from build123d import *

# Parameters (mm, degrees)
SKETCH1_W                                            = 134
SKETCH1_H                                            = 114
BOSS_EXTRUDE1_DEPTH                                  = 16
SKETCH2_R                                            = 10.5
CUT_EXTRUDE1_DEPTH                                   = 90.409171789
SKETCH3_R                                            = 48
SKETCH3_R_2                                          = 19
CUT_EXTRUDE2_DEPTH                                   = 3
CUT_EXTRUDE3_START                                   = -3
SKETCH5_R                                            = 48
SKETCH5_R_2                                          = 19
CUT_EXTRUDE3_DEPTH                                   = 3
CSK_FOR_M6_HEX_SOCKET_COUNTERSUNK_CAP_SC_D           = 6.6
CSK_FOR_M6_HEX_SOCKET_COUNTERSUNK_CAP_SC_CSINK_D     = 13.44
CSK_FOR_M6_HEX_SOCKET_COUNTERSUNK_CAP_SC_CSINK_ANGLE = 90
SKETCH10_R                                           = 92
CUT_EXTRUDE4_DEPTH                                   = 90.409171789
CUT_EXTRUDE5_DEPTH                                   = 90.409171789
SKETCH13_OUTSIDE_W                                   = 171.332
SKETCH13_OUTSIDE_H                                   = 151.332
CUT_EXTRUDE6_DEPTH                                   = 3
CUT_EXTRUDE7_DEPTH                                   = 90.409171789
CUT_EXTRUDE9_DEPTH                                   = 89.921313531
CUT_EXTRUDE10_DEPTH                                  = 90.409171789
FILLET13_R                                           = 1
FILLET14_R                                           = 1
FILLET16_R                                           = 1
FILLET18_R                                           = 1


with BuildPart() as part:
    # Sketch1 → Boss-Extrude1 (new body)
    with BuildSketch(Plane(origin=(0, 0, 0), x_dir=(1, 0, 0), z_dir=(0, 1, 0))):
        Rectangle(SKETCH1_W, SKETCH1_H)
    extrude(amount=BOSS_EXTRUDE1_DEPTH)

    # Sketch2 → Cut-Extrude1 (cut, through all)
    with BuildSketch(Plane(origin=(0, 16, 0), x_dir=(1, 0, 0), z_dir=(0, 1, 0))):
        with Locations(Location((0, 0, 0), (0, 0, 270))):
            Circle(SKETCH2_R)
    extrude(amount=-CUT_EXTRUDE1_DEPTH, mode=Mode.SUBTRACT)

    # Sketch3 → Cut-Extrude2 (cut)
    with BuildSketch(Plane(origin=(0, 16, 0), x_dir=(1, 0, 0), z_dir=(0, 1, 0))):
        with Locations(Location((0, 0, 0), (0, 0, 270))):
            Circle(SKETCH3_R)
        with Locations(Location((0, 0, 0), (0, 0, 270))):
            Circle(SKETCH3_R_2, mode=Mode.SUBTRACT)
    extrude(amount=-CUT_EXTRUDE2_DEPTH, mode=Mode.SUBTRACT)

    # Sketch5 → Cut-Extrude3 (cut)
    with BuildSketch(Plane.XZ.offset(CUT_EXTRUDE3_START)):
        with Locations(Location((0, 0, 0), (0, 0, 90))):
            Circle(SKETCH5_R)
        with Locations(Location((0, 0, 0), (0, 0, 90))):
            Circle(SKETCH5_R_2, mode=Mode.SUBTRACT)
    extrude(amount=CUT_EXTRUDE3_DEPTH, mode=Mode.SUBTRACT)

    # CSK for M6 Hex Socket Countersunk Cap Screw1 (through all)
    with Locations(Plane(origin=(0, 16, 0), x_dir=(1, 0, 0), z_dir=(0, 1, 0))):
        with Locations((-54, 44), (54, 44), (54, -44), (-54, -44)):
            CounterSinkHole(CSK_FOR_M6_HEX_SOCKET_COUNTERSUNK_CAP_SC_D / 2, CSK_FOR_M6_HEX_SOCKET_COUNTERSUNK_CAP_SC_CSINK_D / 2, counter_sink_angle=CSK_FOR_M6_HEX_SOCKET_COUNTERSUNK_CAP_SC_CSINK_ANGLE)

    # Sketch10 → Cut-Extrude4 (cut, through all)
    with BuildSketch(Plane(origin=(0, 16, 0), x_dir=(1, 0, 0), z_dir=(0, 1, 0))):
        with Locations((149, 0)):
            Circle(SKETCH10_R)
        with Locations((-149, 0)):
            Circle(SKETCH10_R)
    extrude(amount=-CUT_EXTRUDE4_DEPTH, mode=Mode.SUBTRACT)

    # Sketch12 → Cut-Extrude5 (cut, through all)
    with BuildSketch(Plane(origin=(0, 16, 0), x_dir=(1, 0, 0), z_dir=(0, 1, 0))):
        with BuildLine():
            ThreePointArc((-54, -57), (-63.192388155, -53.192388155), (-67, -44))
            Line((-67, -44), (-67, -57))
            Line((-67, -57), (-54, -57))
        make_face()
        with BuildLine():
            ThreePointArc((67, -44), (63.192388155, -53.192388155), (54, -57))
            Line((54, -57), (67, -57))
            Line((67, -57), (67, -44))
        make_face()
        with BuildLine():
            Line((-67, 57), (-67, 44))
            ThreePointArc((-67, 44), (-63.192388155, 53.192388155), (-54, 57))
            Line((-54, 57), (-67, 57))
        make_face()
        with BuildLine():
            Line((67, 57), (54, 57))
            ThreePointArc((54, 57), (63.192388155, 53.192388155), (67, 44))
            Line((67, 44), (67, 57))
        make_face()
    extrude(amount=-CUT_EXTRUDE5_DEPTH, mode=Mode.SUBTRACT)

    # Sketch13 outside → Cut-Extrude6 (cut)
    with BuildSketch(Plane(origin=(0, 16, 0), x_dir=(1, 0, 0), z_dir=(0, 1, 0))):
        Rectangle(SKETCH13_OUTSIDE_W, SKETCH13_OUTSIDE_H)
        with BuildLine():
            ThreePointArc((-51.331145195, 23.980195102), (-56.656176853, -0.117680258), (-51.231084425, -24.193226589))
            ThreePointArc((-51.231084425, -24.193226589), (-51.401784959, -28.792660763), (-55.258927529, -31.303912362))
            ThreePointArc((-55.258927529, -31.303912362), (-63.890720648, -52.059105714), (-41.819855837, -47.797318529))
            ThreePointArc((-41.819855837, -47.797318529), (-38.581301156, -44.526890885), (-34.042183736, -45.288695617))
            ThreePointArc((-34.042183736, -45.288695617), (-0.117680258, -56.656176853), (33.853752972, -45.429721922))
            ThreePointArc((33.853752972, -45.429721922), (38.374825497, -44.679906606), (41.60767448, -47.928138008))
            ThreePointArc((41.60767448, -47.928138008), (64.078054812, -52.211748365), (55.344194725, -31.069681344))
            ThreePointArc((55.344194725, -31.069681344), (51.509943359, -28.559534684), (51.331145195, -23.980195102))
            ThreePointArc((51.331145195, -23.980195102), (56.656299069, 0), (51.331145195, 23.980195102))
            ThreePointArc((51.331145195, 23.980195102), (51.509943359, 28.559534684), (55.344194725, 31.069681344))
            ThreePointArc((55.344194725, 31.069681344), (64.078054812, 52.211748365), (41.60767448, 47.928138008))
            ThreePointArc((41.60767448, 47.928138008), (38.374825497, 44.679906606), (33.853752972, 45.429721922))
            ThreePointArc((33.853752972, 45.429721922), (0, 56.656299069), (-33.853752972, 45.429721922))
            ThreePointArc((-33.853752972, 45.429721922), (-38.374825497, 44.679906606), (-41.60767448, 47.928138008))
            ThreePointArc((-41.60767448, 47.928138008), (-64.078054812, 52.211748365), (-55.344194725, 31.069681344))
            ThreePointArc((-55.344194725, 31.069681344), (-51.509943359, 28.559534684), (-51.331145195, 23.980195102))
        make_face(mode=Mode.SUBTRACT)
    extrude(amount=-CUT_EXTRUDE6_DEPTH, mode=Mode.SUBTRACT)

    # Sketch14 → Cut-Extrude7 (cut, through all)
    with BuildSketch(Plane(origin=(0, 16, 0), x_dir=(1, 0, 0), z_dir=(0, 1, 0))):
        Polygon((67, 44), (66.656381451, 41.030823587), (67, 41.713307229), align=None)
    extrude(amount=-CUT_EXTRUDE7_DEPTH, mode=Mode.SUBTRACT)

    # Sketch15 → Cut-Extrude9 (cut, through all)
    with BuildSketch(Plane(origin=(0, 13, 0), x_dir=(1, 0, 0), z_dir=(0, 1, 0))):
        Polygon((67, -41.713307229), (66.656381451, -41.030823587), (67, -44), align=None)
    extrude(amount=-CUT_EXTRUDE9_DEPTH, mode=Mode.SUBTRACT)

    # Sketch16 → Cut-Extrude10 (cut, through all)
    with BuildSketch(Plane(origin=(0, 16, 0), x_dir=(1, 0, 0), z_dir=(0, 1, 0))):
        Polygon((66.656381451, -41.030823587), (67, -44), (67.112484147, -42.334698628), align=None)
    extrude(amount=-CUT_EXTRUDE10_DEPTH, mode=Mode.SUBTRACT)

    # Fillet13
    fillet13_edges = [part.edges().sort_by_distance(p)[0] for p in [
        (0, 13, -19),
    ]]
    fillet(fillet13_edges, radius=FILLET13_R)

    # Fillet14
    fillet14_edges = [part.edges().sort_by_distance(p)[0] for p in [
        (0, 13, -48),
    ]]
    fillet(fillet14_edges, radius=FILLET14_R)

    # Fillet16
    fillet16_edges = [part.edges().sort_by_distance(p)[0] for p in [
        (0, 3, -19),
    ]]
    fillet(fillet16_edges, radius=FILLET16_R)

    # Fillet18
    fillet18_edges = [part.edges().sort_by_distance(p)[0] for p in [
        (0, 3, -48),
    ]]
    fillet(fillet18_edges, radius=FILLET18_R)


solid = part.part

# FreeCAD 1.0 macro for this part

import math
import FreeCAD as App
import Part
import Sketcher
from FreeCAD import Vector
Q = App.Units.Quantity


def edges_at(feature, points):
    """Names of the edges that pass closest to the given points."""
    edges = feature.Shape.Edges
    near = lambda p: min(range(len(edges)), key=lambda i: edges[i].distToShape(Part.Vertex(*p))[0])
    return sorted({f"Edge{near(p) + 1}" for p in points})


def add_polygon(sketch, points):
    """Adds a closed chain of lines whose ends are joined by coincident constraints."""
    first, n = sketch.GeometryCount, len(points)
    for a, b in zip(points, points[1:] + points[:1]):
        sketch.addGeometry(Part.LineSegment(App.Vector(*a, 0), App.Vector(*b, 0)), False)
    for i in range(n):
        sketch.addConstraint(Sketcher.Constraint("Coincident", first + i, 2, first + (i + 1) % n, 1))

doc = App.newDocument("Part")
body = doc.addObject("PartDesign::Body", "Body")

sketch1 = doc.addObject("Sketcher::SketchObject", "Sketch")
body.addObject(sketch1)
sketch1.AttachmentSupport = (doc.XZ_Plane, [""])
sketch1.MapMode = "FlatFace"
add_polygon(sketch1, [(-67, -57), (-67, 57), (67, 57), (67, -57)])
sketch1.addConstraint(Sketcher.Constraint("Vertical", 0))
sketch1.addConstraint(Sketcher.Constraint("Horizontal", 1))
sketch1.addConstraint(Sketcher.Constraint("Vertical", 2))
sketch1.addConstraint(Sketcher.Constraint("Horizontal", 3))
sketch1.addConstraint(Sketcher.Constraint("Symmetric", 0, 2, 2, 2, -1, 1))
sketch1.addConstraint(Sketcher.Constraint("DistanceX", 1, 1, 1, 2, Q("134 mm")))
sketch1.addConstraint(Sketcher.Constraint("DistanceY", 0, 1, 0, 2, Q("114 mm")))
pad1 = doc.addObject("PartDesign::Pad", "Pad")
body.addObject(pad1)
pad1.Profile = sketch1
pad1.Length = 16
pad1.Reversed = True

sketch2 = doc.addObject("Sketcher::SketchObject", "Sketch001")
body.addObject(sketch2)
sketch2.AttachmentSupport = (doc.XZ_Plane, [""])
sketch2.MapMode = "FlatFace"
sketch2.AttachmentOffset = App.Placement(Vector(0, 0, -16), App.Rotation())
sketch2.addGeometry(Part.Circle(Vector(0, 0, 0), Vector(0, 0, 1), 10.5), False)
sketch2.addConstraint(Sketcher.Constraint("Coincident", 0, 3, -1, 1))
sketch2.addConstraint(Sketcher.Constraint("Diameter", 0, Q("21 mm")))
pocket1 = doc.addObject("PartDesign::Pocket", "Pocket")
body.addObject(pocket1)
pocket1.Profile = sketch2
pocket1.Type = "ThroughAll"
pocket1.Reversed = True

sketch3 = doc.addObject("Sketcher::SketchObject", "Sketch002")
body.addObject(sketch3)
sketch3.AttachmentSupport = (doc.XZ_Plane, [""])
sketch3.MapMode = "FlatFace"
sketch3.AttachmentOffset = App.Placement(Vector(0, 0, -16), App.Rotation())
sketch3.addGeometry(Part.Circle(Vector(0, 0, 0), Vector(0, 0, 1), 48), False)
sketch3.addGeometry(Part.Circle(Vector(0, 0, 0), Vector(0, 0, 1), 19), False)
sketch3.addConstraint(Sketcher.Constraint("Coincident", 0, 3, -1, 1))
sketch3.addConstraint(Sketcher.Constraint("Coincident", 1, 3, -1, 1))
sketch3.addConstraint(Sketcher.Constraint("Diameter", 0, Q("96 mm")))
sketch3.addConstraint(Sketcher.Constraint("Diameter", 1, Q("38 mm")))
pocket2 = doc.addObject("PartDesign::Pocket", "Pocket001")
body.addObject(pocket2)
pocket2.Profile = sketch3
pocket2.Length = 3
pocket2.Reversed = True

sketch4 = doc.addObject("Sketcher::SketchObject", "Sketch003")
body.addObject(sketch4)
sketch4.AttachmentSupport = (doc.XZ_Plane, [""])
sketch4.MapMode = "FlatFace"
sketch4.AttachmentOffset = App.Placement(Vector(0, 0, -3), App.Rotation())
sketch4.addGeometry(Part.Circle(Vector(0, 0, 0), Vector(0, 0, 1), 48), False)
sketch4.addGeometry(Part.Circle(Vector(0, 0, 0), Vector(0, 0, 1), 19), False)
sketch4.addConstraint(Sketcher.Constraint("Coincident", 0, 3, -1, 1))
sketch4.addConstraint(Sketcher.Constraint("Coincident", 1, 3, -1, 1))
sketch4.addConstraint(Sketcher.Constraint("Diameter", 0, Q("96 mm")))
sketch4.addConstraint(Sketcher.Constraint("Diameter", 1, Q("38 mm")))
pocket3 = doc.addObject("PartDesign::Pocket", "Pocket002")
body.addObject(pocket3)
pocket3.Profile = sketch4
pocket3.Length = 3
pocket3.Reversed = True

sketch5 = doc.addObject("Sketcher::SketchObject", "Sketch004")
body.addObject(sketch5)
sketch5.AttachmentSupport = (doc.XZ_Plane, [""])
sketch5.MapMode = "FlatFace"
sketch5.AttachmentOffset = App.Placement(Vector(0, 0, -16), App.Rotation())
sketch5.addGeometry(Part.Circle(Vector(-54, -44, 0), Vector(0, 0, 1), 3.3), False)
sketch5.addGeometry(Part.Circle(Vector(54, -44, 0), Vector(0, 0, 1), 3.3), False)
sketch5.addGeometry(Part.Circle(Vector(54, 44, 0), Vector(0, 0, 1), 3.3), False)
sketch5.addGeometry(Part.Circle(Vector(-54, 44, 0), Vector(0, 0, 1), 3.3), False)
sketch5.addConstraint(Sketcher.Constraint("Equal", 0, 1))
sketch5.addConstraint(Sketcher.Constraint("Equal", 1, 2))
sketch5.addConstraint(Sketcher.Constraint("Equal", 2, 3))
sketch5.addConstraint(Sketcher.Constraint("Symmetric", 0, 3, 2, 3, -1, 1))
sketch5.addConstraint(Sketcher.Constraint("Symmetric", 1, 3, 3, 3, -1, 1))
sketch5.addConstraint(Sketcher.Constraint("Symmetric", 0, 3, 1, 3, -2))
sketch5.addConstraint(Sketcher.Constraint("Diameter", 0, Q("6.6 mm")))
sketch5.addConstraint(Sketcher.Constraint("DistanceX", 0, 3, -1, 1, Q("54 mm")))
sketch5.addConstraint(Sketcher.Constraint("DistanceY", 0, 3, -1, 1, Q("44 mm")))
doc.recompute()
hole = doc.addObject("PartDesign::Hole", "Hole")
body.addObject(hole)
hole.Profile = sketch5
hole.ThreadType = "None"
hole.Diameter = 6.6
hole.DepthType = "ThroughAll"
hole.HoleCutType = "Countersink"
hole.HoleCutDiameter = 13.44
hole.HoleCutCountersinkAngle = 90
hole.Reversed = True

sketch6 = doc.addObject("Sketcher::SketchObject", "Sketch005")
body.addObject(sketch6)
sketch6.AttachmentSupport = (doc.XZ_Plane, [""])
sketch6.MapMode = "FlatFace"
sketch6.AttachmentOffset = App.Placement(Vector(0, 0, -16), App.Rotation())
sketch6.addGeometry(Part.Circle(Vector(149, 0, 0), Vector(0, 0, 1), 92), False)
sketch6.addGeometry(Part.Circle(Vector(-149, 0, 0), Vector(0, 0, 1), 92), False)
sketch6.addConstraint(Sketcher.Constraint("Equal", 0, 1))
sketch6.addConstraint(Sketcher.Constraint("Symmetric", 0, 3, 1, 3, -1, 1))
sketch6.addConstraint(Sketcher.Constraint("PointOnObject", 0, 3, -1))
sketch6.addConstraint(Sketcher.Constraint("Diameter", 0, Q("184 mm")))
sketch6.addConstraint(Sketcher.Constraint("DistanceX", -1, 1, 0, 3, Q("149 mm")))
pocket4 = doc.addObject("PartDesign::Pocket", "Pocket003")
body.addObject(pocket4)
pocket4.Profile = sketch6
pocket4.Type = "ThroughAll"
pocket4.Reversed = True

sketch7 = doc.addObject("Sketcher::SketchObject", "Sketch006")
body.addObject(sketch7)
sketch7.AttachmentSupport = (doc.XZ_Plane, [""])
sketch7.MapMode = "FlatFace"
sketch7.AttachmentOffset = App.Placement(Vector(0, 0, -16), App.Rotation())
sketch7.addGeometry(Part.ArcOfCircle(Part.Circle(Vector(-54, 44, 0), Vector(0, 0, 1), 13), math.radians(90), math.radians(180)), False)
sketch7.addGeometry(Part.LineSegment(Vector(-67, 44, 0), Vector(-67, 57, 0)), False)
sketch7.addGeometry(Part.LineSegment(Vector(-67, 57, 0), Vector(-54, 57, 0)), False)
sketch7.addGeometry(Part.ArcOfCircle(Part.Circle(Vector(54, 44, 0), Vector(0, 0, 1), 13), math.radians(0), math.radians(90)), False)
sketch7.addGeometry(Part.LineSegment(Vector(54, 57, 0), Vector(67, 57, 0)), False)
sketch7.addGeometry(Part.LineSegment(Vector(67, 57, 0), Vector(67, 44, 0)), False)
sketch7.addGeometry(Part.LineSegment(Vector(-67, -57, 0), Vector(-67, -44, 0)), False)
sketch7.addGeometry(Part.ArcOfCircle(Part.Circle(Vector(-54, -44, 0), Vector(0, 0, 1), 13), math.radians(-180), math.radians(-90)), False)
sketch7.addGeometry(Part.LineSegment(Vector(-54, -57, 0), Vector(-67, -57, 0)), False)
sketch7.addGeometry(Part.LineSegment(Vector(67, -57, 0), Vector(54, -57, 0)), False)
sketch7.addGeometry(Part.ArcOfCircle(Part.Circle(Vector(54, -44, 0), Vector(0, 0, 1), 13), math.radians(-90), math.radians(0)), False)
sketch7.addGeometry(Part.LineSegment(Vector(67, -44, 0), Vector(67, -57, 0)), False)
sketch7.addConstraint(Sketcher.Constraint("Tangent", 0, 2, 1, 1))
sketch7.addConstraint(Sketcher.Constraint("Coincident", 1, 2, 2, 1))
sketch7.addConstraint(Sketcher.Constraint("Tangent", 2, 2, 0, 1))
sketch7.addConstraint(Sketcher.Constraint("Tangent", 3, 2, 4, 1))
sketch7.addConstraint(Sketcher.Constraint("Coincident", 4, 2, 5, 1))
sketch7.addConstraint(Sketcher.Constraint("Tangent", 5, 2, 3, 1))
sketch7.addConstraint(Sketcher.Constraint("Tangent", 6, 2, 7, 1))
sketch7.addConstraint(Sketcher.Constraint("Tangent", 7, 2, 8, 1))
sketch7.addConstraint(Sketcher.Constraint("Coincident", 8, 2, 6, 1))
sketch7.addConstraint(Sketcher.Constraint("Tangent", 9, 2, 10, 1))
sketch7.addConstraint(Sketcher.Constraint("Tangent", 10, 2, 11, 1))
sketch7.addConstraint(Sketcher.Constraint("Coincident", 11, 2, 9, 1))
sketch7.addConstraint(Sketcher.Constraint("Vertical", 1))
sketch7.addConstraint(Sketcher.Constraint("Horizontal", 2))
sketch7.addConstraint(Sketcher.Constraint("Horizontal", 4))
sketch7.addConstraint(Sketcher.Constraint("Vertical", 5))
sketch7.addConstraint(Sketcher.Constraint("Vertical", 6))
sketch7.addConstraint(Sketcher.Constraint("Horizontal", 8))
sketch7.addConstraint(Sketcher.Constraint("Horizontal", 9))
sketch7.addConstraint(Sketcher.Constraint("Vertical", 11))
sketch7.addConstraint(Sketcher.Constraint("Equal", 0, 3))
sketch7.addConstraint(Sketcher.Constraint("Equal", 3, 7))
sketch7.addConstraint(Sketcher.Constraint("Equal", 7, 10))
sketch7.addConstraint(Sketcher.Constraint("Symmetric", 3, 3, 7, 3, -1, 1))
sketch7.addConstraint(Sketcher.Constraint("Symmetric", 0, 3, 10, 3, -1, 1))
sketch7.addConstraint(Sketcher.Constraint("Symmetric", 0, 3, 3, 3, -2))
sketch7.addConstraint(Sketcher.Constraint("Radius", 0, Q("13 mm")))
sketch7.addConstraint(Sketcher.Constraint("DistanceX", 0, 3, -1, 1, Q("54 mm")))
sketch7.addConstraint(Sketcher.Constraint("DistanceY", -1, 1, 0, 3, Q("44 mm")))
pocket5 = doc.addObject("PartDesign::Pocket", "Pocket004")
body.addObject(pocket5)
pocket5.Profile = sketch7
pocket5.Type = "ThroughAll"
pocket5.Reversed = True

sketch8 = doc.addObject("Sketcher::SketchObject", "Sketch007")
body.addObject(sketch8)
sketch8.AttachmentSupport = (doc.XZ_Plane, [""])
sketch8.MapMode = "FlatFace"
sketch8.AttachmentOffset = App.Placement(Vector(0, 0, -16), App.Rotation())
add_polygon(sketch8, [(-85.666, -75.666), (-85.666, 75.666), (85.666, 75.666), (85.666, -75.666)])
sketch8.addGeometry(Part.ArcOfCircle(Part.Circle(Vector(0, 0, 0), Vector(0, 0, 1), 56.656299), math.radians(154.721574), math.radians(205.040409)), False)
sketch8.addGeometry(Part.ArcOfCircle(Part.Circle(Vector(-55.861193, -26.096482, 0), Vector(0, 0, 1), 5), math.radians(-84.065032), math.radians(25.040409)), False)
sketch8.addGeometry(Part.ArcOfCircle(Part.Circle(Vector(-54, -44, 0), Vector(0, 0, 1), 13), math.radians(95.934968), math.radians(342.412348)), False)
sketch8.addGeometry(Part.ArcOfCircle(Part.Circle(Vector(-36.841395, -49.43896, 0), Vector(0, 0, 1), 5), math.radians(53.306907), math.radians(162.412348)), False)
sketch8.addGeometry(Part.ArcOfCircle(Part.Circle(Vector(0, 0, 0), Vector(0, 0, 1), 56.656299), math.radians(-126.693093), math.radians(-53.306907)), False)
sketch8.addGeometry(Part.ArcOfCircle(Part.Circle(Vector(36.841395, -49.43896, 0), Vector(0, 0, 1), 5), math.radians(17.587652), math.radians(126.693093)), False)
sketch8.addGeometry(Part.ArcOfCircle(Part.Circle(Vector(54, -44, 0), Vector(0, 0, 1), 13), math.radians(-162.412348), math.radians(84.065032)), False)
sketch8.addGeometry(Part.ArcOfCircle(Part.Circle(Vector(55.861193, -26.096482, 0), Vector(0, 0, 1), 5), math.radians(154.959591), math.radians(264.065032)), False)
sketch8.addGeometry(Part.ArcOfCircle(Part.Circle(Vector(0, 0, 0), Vector(0, 0, 1), 56.656299), math.radians(-25.040409), math.radians(25.040409)), False)
sketch8.addGeometry(Part.ArcOfCircle(Part.Circle(Vector(55.861193, 26.096482, 0), Vector(0, 0, 1), 5), math.radians(95.934968), math.radians(205.040409)), False)
sketch8.addGeometry(Part.ArcOfCircle(Part.Circle(Vector(54, 44, 0), Vector(0, 0, 1), 13), math.radians(-84.065032), math.radians(162.412348)), False)
sketch8.addGeometry(Part.ArcOfCircle(Part.Circle(Vector(36.841395, 49.43896, 0), Vector(0, 0, 1), 5), math.radians(-126.693093), math.radians(-17.587652)), False)
sketch8.addGeometry(Part.ArcOfCircle(Part.Circle(Vector(0, 0, 0), Vector(0, 0, 1), 56.656299), math.radians(53.306907), math.radians(126.93111)), False)
sketch8.addGeometry(Part.ArcOfCircle(Part.Circle(Vector(-37.046455, 49.285488, 0), Vector(0, 0, 1), 5), math.radians(-162.684453), math.radians(-53.06889)), False)
sketch8.addGeometry(Part.ArcOfCircle(Part.Circle(Vector(-54, 44, 0), Vector(0, 0, 1), 12.758352), math.radians(17.315547), math.radians(264.337137)), False)
sketch8.addGeometry(Part.ArcOfCircle(Part.Circle(Vector(-55.752301, 26.328314, 0), Vector(0, 0, 1), 5), math.radians(-25.278426), math.radians(84.337137)), False)
sketch8.addConstraint(Sketcher.Constraint("Tangent", 4, 2, 5, 2))
sketch8.addConstraint(Sketcher.Constraint("Tangent", 5, 1, 6, 1))
sketch8.addConstraint(Sketcher.Constraint("Tangent", 6, 2, 7, 2))
sketch8.addConstraint(Sketcher.Constraint("Tangent", 7, 1, 8, 1))
sketch8.addConstraint(Sketcher.Constraint("Tangent", 8, 2, 9, 2))
sketch8.addConstraint(Sketcher.Constraint("Tangent", 9, 1, 10, 1))
sketch8.addConstraint(Sketcher.Constraint("Tangent", 10, 2, 11, 2))
sketch8.addConstraint(Sketcher.Constraint("Tangent", 11, 1, 12, 1))
sketch8.addConstraint(Sketcher.Constraint("Tangent", 12, 2, 13, 2))
sketch8.addConstraint(Sketcher.Constraint("Tangent", 13, 1, 14, 1))
sketch8.addConstraint(Sketcher.Constraint("Tangent", 14, 2, 15, 2))
sketch8.addConstraint(Sketcher.Constraint("Tangent", 15, 1, 16, 1))
sketch8.addConstraint(Sketcher.Constraint("Tangent", 16, 2, 17, 2))
sketch8.addConstraint(Sketcher.Constraint("Tangent", 17, 1, 18, 1))
sketch8.addConstraint(Sketcher.Constraint("Tangent", 18, 2, 19, 2))
sketch8.addConstraint(Sketcher.Constraint("Tangent", 19, 1, 4, 1))
sketch8.addConstraint(Sketcher.Constraint("Vertical", 0))
sketch8.addConstraint(Sketcher.Constraint("Horizontal", 1))
sketch8.addConstraint(Sketcher.Constraint("Vertical", 2))
sketch8.addConstraint(Sketcher.Constraint("Horizontal", 3))
sketch8.addConstraint(Sketcher.Constraint("Coincident", 4, 3, -1, 1))
sketch8.addConstraint(Sketcher.Constraint("Coincident", 8, 3, -1, 1))
sketch8.addConstraint(Sketcher.Constraint("Coincident", 12, 3, -1, 1))
sketch8.addConstraint(Sketcher.Constraint("Coincident", 16, 3, -1, 1))
sketch8.addConstraint(Sketcher.Constraint("Equal", 5, 7))
sketch8.addConstraint(Sketcher.Constraint("Equal", 4, 8))
sketch8.addConstraint(Sketcher.Constraint("Equal", 7, 9))
sketch8.addConstraint(Sketcher.Constraint("Equal", 6, 10))
sketch8.addConstraint(Sketcher.Constraint("Equal", 9, 11))
sketch8.addConstraint(Sketcher.Constraint("Equal", 8, 12))
sketch8.addConstraint(Sketcher.Constraint("Equal", 11, 13))
sketch8.addConstraint(Sketcher.Constraint("Equal", 10, 14))
sketch8.addConstraint(Sketcher.Constraint("Equal", 13, 15))
sketch8.addConstraint(Sketcher.Constraint("Equal", 12, 16))
sketch8.addConstraint(Sketcher.Constraint("Equal", 15, 17))
sketch8.addConstraint(Sketcher.Constraint("Equal", 17, 19))
sketch8.addConstraint(Sketcher.Constraint("Symmetric", 6, 3, 14, 3, -1, 1))
sketch8.addConstraint(Sketcher.Constraint("Symmetric", 10, 3, 18, 3, -1, 1))
sketch8.addConstraint(Sketcher.Constraint("Symmetric", 0, 2, 2, 2, -1, 1))
sketch8.addConstraint(Sketcher.Constraint("Symmetric", 6, 3, 10, 3, -2))
sketch8.addConstraint(Sketcher.Constraint("Radius", 5, Q("5 mm")))
sketch8.addConstraint(Sketcher.Constraint("Radius", 6, Q("13 mm")))
sketch8.addConstraint(Sketcher.Constraint("DistanceX", 6, 3, -1, 1, Q("54 mm")))
sketch8.addConstraint(Sketcher.Constraint("DistanceY", 6, 3, -1, 1, Q("44 mm")))
sketch8.addConstraint(Sketcher.Constraint("Radius", 4, Q("56.656299 mm")))
sketch8.addConstraint(Sketcher.Constraint("DistanceX", 1, 1, 1, 2, Q("171.332 mm")))
sketch8.addConstraint(Sketcher.Constraint("DistanceY", 0, 1, 0, 2, Q("151.332 mm")))
sketch8.addConstraint(Sketcher.Constraint("Radius", 18, Q("12.758352 mm")))
pocket6 = doc.addObject("PartDesign::Pocket", "Pocket005")
body.addObject(pocket6)
pocket6.Profile = sketch8
pocket6.Length = 3
pocket6.Reversed = True

sketch9 = doc.addObject("Sketcher::SketchObject", "Sketch008")
body.addObject(sketch9)
sketch9.AttachmentSupport = (doc.XZ_Plane, [""])
sketch9.MapMode = "FlatFace"
sketch9.AttachmentOffset = App.Placement(Vector(0, 0, -16), App.Rotation())
add_polygon(sketch9, [(67, -44), (66.656381, -41.030824), (67, -41.713307)])
sketch9.addConstraint(Sketcher.Constraint("Vertical", 2))
sketch9.addConstraint(Sketcher.Constraint("DistanceX", -1, 1, 1, 2, Q("67 mm")))
sketch9.addConstraint(Sketcher.Constraint("DistanceY", 2, 2, -1, 1, Q("44 mm")))
sketch9.addConstraint(Sketcher.Constraint("DistanceY", 2, 2, 2, 1, Q("2.286693 mm")))
sketch9.addConstraint(Sketcher.Constraint("DistanceX", -1, 1, 0, 2, Q("66.656381 mm")))
sketch9.addConstraint(Sketcher.Constraint("Distance", 0, Q("2.988994 mm")))
pocket7 = doc.addObject("PartDesign::Pocket", "Pocket006")
body.addObject(pocket7)
pocket7.Profile = sketch9
pocket7.Type = "ThroughAll"
pocket7.Reversed = True

sketch10 = doc.addObject("Sketcher::SketchObject", "Sketch009")
body.addObject(sketch10)
sketch10.AttachmentSupport = (doc.XZ_Plane, [""])
sketch10.MapMode = "FlatFace"
sketch10.AttachmentOffset = App.Placement(Vector(0, 0, -13), App.Rotation())
add_polygon(sketch10, [(67, 41.713307), (66.656381, 41.030824), (67, 44)])
sketch10.addConstraint(Sketcher.Constraint("Vertical", 2))
sketch10.addConstraint(Sketcher.Constraint("DistanceX", -1, 1, 1, 2, Q("67 mm")))
sketch10.addConstraint(Sketcher.Constraint("DistanceY", -1, 1, 1, 2, Q("44 mm")))
sketch10.addConstraint(Sketcher.Constraint("DistanceY", 2, 2, 2, 1, Q("2.286693 mm")))
sketch10.addConstraint(Sketcher.Constraint("DistanceX", -1, 1, 0, 2, Q("66.656381 mm")))
sketch10.addConstraint(Sketcher.Constraint("Distance", 0, Q("0.764106 mm")))
pocket8 = doc.addObject("PartDesign::Pocket", "Pocket007")
body.addObject(pocket8)
pocket8.Profile = sketch10
pocket8.Type = "ThroughAll"
pocket8.Reversed = True

sketch11 = doc.addObject("Sketcher::SketchObject", "Sketch010")
body.addObject(sketch11)
sketch11.AttachmentSupport = (doc.XZ_Plane, [""])
sketch11.MapMode = "FlatFace"
sketch11.AttachmentOffset = App.Placement(Vector(0, 0, -16), App.Rotation())
add_polygon(sketch11, [(66.656381, 41.030824), (67, 44), (67.112484, 42.334699)])
sketch11.addConstraint(Sketcher.Constraint("DistanceX", -1, 1, 0, 2, Q("67 mm")))
sketch11.addConstraint(Sketcher.Constraint("DistanceY", -1, 1, 0, 2, Q("44 mm")))
sketch11.addConstraint(Sketcher.Constraint("DistanceY", -1, 1, 1, 2, Q("42.334699 mm")))
sketch11.addConstraint(Sketcher.Constraint("DistanceX", -1, 1, 2, 2, Q("66.656381 mm")))
sketch11.addConstraint(Sketcher.Constraint("Distance", 0, Q("2.988994 mm")))
sketch11.addConstraint(Sketcher.Constraint("Distance", 1, Q("1.669096 mm")))
pocket9 = doc.addObject("PartDesign::Pocket", "Pocket008")
body.addObject(pocket9)
pocket9.Profile = sketch11
pocket9.Type = "ThroughAll"
pocket9.Reversed = True
doc.recompute()

fillet = doc.addObject("PartDesign::Fillet", "Fillet")
body.addObject(fillet)
fillet.Base = (pocket9, edges_at(pocket9, [(0, 13, -19)]))
fillet.Radius = 1
doc.recompute()

fillet2 = doc.addObject("PartDesign::Fillet", "Fillet001")
body.addObject(fillet2)
fillet2.Base = (fillet, edges_at(fillet, [(0, 13, -48)]))
fillet2.Radius = 1
doc.recompute()

fillet3 = doc.addObject("PartDesign::Fillet", "Fillet002")
body.addObject(fillet3)
fillet3.Base = (fillet2, edges_at(fillet2, [(0, 3, -19)]))
fillet3.Radius = 1
doc.recompute()

fillet4 = doc.addObject("PartDesign::Fillet", "Fillet003")
body.addObject(fillet4)
fillet4.Base = (fillet3, edges_at(fillet3, [(0, 3, -48)]))
fillet4.Radius = 1

doc.recompute()
